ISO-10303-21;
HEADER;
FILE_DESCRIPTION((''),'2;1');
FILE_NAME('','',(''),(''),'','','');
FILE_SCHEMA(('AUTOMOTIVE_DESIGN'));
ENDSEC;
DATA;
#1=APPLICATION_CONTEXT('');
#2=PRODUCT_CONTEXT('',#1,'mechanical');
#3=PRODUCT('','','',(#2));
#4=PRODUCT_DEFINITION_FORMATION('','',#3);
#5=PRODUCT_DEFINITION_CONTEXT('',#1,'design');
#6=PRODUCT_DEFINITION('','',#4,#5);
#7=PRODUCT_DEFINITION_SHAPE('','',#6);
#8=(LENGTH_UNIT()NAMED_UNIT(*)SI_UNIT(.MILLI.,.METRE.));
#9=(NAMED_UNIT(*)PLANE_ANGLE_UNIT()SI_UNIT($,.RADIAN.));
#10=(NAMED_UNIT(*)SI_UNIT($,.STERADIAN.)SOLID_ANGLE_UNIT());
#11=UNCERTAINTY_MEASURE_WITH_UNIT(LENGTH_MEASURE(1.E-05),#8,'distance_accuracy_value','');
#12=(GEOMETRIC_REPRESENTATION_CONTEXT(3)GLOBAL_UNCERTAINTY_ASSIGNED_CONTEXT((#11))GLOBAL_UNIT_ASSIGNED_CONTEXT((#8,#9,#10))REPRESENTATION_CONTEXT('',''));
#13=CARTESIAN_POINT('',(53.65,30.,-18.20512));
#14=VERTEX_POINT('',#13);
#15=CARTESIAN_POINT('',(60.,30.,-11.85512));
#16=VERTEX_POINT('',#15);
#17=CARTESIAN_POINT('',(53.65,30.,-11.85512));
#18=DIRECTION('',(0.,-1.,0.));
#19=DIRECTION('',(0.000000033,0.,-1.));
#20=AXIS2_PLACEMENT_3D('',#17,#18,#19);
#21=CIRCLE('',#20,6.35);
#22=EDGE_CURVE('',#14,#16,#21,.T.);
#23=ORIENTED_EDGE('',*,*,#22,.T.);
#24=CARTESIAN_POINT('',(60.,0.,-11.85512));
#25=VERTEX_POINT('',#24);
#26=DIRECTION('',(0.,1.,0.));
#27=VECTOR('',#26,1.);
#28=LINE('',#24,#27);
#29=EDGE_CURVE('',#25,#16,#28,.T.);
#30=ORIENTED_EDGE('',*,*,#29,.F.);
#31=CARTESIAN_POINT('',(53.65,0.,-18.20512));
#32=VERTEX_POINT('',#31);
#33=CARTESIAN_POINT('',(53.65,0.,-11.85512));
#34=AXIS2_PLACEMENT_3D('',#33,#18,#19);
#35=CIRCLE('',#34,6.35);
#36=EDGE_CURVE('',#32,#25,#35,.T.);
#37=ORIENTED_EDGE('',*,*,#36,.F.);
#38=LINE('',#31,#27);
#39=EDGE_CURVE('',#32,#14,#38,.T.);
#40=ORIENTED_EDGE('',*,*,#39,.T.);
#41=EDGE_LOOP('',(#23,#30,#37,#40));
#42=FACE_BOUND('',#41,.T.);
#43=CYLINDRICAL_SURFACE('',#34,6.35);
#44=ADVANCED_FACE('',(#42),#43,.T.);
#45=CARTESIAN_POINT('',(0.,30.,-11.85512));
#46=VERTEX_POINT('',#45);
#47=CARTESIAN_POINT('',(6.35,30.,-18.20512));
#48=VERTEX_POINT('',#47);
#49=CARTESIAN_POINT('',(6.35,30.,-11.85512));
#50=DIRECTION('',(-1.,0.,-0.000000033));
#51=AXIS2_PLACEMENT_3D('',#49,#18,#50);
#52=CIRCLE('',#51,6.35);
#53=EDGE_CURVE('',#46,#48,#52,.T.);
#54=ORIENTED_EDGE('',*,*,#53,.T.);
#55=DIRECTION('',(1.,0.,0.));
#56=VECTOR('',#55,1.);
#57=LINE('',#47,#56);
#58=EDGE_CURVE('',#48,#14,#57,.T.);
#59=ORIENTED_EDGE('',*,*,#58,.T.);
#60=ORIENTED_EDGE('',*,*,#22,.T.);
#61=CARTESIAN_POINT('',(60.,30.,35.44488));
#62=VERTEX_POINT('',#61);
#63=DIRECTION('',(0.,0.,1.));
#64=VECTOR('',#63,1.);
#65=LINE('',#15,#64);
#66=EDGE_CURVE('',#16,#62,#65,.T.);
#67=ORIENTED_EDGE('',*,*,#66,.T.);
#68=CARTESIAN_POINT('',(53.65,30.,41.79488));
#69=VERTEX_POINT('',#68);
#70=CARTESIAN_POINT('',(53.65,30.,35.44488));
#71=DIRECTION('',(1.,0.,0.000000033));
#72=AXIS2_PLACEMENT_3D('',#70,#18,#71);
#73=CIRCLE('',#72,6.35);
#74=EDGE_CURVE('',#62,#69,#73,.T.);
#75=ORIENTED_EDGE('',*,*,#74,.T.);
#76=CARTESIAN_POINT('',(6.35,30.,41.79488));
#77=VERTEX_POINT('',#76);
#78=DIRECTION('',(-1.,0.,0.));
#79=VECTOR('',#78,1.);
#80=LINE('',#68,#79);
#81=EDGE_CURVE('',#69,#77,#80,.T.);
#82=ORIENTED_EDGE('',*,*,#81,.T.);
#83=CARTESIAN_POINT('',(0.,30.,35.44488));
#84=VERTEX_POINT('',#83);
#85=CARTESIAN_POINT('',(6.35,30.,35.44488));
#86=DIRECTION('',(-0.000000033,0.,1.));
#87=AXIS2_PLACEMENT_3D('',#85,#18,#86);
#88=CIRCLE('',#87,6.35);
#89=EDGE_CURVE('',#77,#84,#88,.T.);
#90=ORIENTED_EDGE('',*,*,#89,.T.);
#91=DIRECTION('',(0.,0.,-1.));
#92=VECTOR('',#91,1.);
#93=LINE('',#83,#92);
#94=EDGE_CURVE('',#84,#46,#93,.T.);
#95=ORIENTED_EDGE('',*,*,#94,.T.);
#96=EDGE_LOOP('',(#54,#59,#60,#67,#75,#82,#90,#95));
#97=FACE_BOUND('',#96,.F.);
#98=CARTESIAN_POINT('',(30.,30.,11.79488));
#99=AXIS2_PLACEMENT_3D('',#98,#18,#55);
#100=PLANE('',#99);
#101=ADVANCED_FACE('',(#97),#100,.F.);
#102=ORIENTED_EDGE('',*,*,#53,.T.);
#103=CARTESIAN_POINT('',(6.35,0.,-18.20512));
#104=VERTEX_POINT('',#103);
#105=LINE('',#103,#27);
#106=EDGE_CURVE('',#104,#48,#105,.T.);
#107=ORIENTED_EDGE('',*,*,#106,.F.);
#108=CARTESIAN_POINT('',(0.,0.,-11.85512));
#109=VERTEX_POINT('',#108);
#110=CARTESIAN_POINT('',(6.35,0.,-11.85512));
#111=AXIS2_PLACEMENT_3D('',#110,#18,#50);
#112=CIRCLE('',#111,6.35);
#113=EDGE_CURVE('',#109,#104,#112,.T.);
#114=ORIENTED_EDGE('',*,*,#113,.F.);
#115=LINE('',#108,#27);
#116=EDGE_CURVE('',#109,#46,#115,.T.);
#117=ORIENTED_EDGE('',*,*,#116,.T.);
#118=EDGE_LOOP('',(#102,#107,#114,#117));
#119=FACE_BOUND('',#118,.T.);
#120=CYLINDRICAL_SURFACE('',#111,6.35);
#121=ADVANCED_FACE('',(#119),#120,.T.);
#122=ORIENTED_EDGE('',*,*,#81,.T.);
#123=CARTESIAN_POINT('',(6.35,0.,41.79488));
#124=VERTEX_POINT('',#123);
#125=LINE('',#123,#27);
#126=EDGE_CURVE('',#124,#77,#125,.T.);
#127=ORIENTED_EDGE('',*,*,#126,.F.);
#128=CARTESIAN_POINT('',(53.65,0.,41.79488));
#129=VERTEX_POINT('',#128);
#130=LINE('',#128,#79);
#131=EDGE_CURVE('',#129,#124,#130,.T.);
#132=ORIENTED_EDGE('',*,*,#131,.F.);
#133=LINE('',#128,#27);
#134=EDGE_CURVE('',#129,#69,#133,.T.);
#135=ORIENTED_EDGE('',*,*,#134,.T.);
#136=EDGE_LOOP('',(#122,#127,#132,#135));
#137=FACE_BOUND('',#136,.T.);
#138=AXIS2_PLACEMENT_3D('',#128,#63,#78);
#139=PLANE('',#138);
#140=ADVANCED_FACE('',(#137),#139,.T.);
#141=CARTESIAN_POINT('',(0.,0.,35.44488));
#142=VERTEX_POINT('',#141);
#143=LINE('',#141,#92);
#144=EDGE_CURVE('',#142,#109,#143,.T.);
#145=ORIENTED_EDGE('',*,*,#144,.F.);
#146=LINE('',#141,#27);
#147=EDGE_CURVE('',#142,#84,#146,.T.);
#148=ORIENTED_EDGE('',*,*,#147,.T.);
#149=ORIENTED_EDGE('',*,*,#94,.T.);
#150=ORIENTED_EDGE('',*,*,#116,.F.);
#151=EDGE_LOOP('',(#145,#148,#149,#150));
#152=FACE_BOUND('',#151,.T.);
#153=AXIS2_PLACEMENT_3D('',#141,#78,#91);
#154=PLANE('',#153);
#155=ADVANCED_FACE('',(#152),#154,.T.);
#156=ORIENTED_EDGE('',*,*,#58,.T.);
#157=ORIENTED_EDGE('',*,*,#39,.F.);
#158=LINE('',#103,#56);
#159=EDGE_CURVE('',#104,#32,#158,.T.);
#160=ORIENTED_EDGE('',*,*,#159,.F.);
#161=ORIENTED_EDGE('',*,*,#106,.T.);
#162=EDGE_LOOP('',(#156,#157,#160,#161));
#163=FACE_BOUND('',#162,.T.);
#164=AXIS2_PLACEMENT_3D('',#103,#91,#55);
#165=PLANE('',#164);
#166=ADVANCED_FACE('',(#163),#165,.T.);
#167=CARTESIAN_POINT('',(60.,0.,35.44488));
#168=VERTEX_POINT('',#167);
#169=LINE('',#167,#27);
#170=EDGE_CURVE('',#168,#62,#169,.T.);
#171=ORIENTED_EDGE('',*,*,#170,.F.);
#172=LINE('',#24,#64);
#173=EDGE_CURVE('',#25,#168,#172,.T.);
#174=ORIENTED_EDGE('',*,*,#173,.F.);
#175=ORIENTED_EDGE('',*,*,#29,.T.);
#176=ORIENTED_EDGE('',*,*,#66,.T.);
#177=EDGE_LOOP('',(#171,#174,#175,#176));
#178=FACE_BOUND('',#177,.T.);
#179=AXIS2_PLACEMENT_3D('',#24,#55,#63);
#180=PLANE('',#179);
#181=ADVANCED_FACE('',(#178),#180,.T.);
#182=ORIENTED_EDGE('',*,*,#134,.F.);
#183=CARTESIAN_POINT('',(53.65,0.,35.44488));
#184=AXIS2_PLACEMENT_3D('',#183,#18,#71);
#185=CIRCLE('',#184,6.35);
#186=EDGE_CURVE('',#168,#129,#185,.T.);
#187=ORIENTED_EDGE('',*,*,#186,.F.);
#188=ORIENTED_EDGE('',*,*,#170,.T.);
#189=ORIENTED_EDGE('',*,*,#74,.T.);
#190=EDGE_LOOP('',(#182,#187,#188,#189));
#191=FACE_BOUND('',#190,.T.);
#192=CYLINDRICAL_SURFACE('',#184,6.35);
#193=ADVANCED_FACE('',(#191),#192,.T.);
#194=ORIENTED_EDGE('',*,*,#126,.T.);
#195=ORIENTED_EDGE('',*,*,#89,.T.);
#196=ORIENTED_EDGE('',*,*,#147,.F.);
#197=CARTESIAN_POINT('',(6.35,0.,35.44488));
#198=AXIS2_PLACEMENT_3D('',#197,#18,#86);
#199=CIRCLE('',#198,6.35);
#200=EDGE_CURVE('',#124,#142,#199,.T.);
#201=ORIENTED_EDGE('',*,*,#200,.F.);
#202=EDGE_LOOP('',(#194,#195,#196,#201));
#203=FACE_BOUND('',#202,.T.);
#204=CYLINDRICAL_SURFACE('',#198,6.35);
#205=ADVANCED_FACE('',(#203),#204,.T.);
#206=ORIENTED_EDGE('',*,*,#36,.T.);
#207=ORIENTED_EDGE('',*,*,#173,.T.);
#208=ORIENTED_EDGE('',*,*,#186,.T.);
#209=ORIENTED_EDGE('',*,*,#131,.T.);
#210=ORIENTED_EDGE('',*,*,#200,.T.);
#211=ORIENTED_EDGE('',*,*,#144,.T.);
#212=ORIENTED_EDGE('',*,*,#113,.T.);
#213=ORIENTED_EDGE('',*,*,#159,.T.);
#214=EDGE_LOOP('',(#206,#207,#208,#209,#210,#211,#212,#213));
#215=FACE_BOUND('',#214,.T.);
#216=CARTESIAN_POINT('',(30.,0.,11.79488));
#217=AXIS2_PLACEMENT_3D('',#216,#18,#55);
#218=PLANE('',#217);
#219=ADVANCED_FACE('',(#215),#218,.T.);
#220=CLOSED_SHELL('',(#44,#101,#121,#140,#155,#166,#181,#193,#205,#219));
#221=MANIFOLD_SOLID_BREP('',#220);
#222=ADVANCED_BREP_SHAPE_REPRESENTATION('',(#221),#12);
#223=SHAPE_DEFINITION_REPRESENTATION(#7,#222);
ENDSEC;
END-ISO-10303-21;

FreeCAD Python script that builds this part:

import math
import FreeCAD as App
import Part
import Sketcher
Q = App.Units.Quantity

doc = App.newDocument("Part")
body = doc.addObject("PartDesign::Body", "Body")

sketch1 = body.newObject("Sketcher::SketchObject", "Sketch")
sketch1.AttachmentSupport = (doc.getObject("XZ_Plane"), [""])
sketch1.MapMode = "FlatFace"
sketch1.addGeometry(Part.LineSegment(App.Vector(54, 42, 0), App.Vector(6, 42, 0)), False)
sketch1.addGeometry(Part.ArcOfCircle(Part.Circle(App.Vector(6, 35, 0), App.Vector(0, 0, 1), 6), math.radians(90), math.radians(180)), False)
sketch1.addGeometry(Part.LineSegment(App.Vector(0, 35, 0), App.Vector(0, -12, 0)), False)
sketch1.addGeometry(Part.ArcOfCircle(Part.Circle(App.Vector(6, -12, 0), App.Vector(0, 0, 1), 6), math.radians(-180), math.radians(-90)), False)
sketch1.addGeometry(Part.LineSegment(App.Vector(6, -18, 0), App.Vector(54, -18, 0)), False)
sketch1.addGeometry(Part.ArcOfCircle(Part.Circle(App.Vector(54, -12, 0), App.Vector(0, 0, 1), 6), math.radians(-90), math.radians(0)), False)
sketch1.addGeometry(Part.LineSegment(App.Vector(60, -12, 0), App.Vector(60, 35, 0)), False)
sketch1.addGeometry(Part.ArcOfCircle(Part.Circle(App.Vector(54, 35, 0), App.Vector(0, 0, 1), 6), math.radians(0), math.radians(90)), False)
sketch1.addConstraint(Sketcher.Constraint("Tangent", 0, 2, 1, 1))
sketch1.addConstraint(Sketcher.Constraint("Tangent", 1, 2, 2, 1))
sketch1.addConstraint(Sketcher.Constraint("Tangent", 2, 2, 3, 1))
sketch1.addConstraint(Sketcher.Constraint("Tangent", 3, 2, 4, 1))
sketch1.addConstraint(Sketcher.Constraint("Tangent", 4, 2, 5, 1))
sketch1.addConstraint(Sketcher.Constraint("Tangent", 5, 2, 6, 1))
sketch1.addConstraint(Sketcher.Constraint("Tangent", 6, 2, 7, 1))
sketch1.addConstraint(Sketcher.Constraint("Tangent", 7, 2, 0, 1))
sketch1.addConstraint(Sketcher.Constraint("Horizontal", 0))
sketch1.addConstraint(Sketcher.Constraint("Vertical", 2))
sketch1.addConstraint(Sketcher.Constraint("Horizontal", 4))
sketch1.addConstraint(Sketcher.Constraint("Vertical", 6))
sketch1.addConstraint(Sketcher.Constraint("Equal", 1, 3))
sketch1.addConstraint(Sketcher.Constraint("Equal", 3, 5))
sketch1.addConstraint(Sketcher.Constraint("Equal", 5, 7))
sketch1.addConstraint(Sketcher.Constraint("PointOnObject", 1, 2, -2))
sketch1.addConstraint(Sketcher.Constraint("Equal", 4, 2))
sketch1.addConstraint(Sketcher.Constraint("Radius", 1, Q("6.35 mm")))
sketch1.addConstraint(Sketcher.Constraint("DistanceX", 0, 2, 0, 1, Q("47.3 mm")))
sketch1.addConstraint(Sketcher.Constraint("DistanceY", -1, 1, 1, 3, Q("35.44488 mm")))
pad1 = body.newObject("PartDesign::Pad", "Pad")
pad1.Profile = sketch1
pad1.Length = 30
pad1.Reversed = True

doc.recompute()
